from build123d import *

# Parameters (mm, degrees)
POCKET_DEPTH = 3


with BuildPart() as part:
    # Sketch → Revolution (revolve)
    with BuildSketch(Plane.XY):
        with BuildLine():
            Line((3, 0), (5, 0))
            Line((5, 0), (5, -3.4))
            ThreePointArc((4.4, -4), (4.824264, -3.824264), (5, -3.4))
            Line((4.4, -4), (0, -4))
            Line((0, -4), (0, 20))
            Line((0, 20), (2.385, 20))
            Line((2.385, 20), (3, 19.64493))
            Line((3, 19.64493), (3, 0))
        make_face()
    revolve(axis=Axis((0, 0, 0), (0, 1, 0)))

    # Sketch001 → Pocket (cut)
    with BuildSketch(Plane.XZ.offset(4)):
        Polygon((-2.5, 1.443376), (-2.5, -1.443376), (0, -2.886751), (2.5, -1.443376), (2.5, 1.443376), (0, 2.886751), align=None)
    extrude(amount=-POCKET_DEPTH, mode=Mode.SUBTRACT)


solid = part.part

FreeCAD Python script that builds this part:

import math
import FreeCAD as App
import Part
import Sketcher
Q = App.Units.Quantity

doc = App.newDocument("Part")
body = doc.addObject("PartDesign::Body", "Body")

# Sketch on XY plane
sketch1 = body.newObject("Sketcher::SketchObject", "Sketch")
sketch1.AttachmentSupport = (doc.getObject("XY_Plane"), [""])
sketch1.MapMode = "FlatFace"
sketch1.addGeometry([
    Part.LineSegment(App.Vector(5, 0, 0), App.Vector(3, 0, 0)),  # 0
    Part.LineSegment(App.Vector(3, 0, 0), App.Vector(3, 19.64493, 0)),  # 1
    Part.LineSegment(App.Vector(3, 19.64493, 0), App.Vector(2.385, 20, 0)),  # 2
    Part.LineSegment(App.Vector(2.385, 20, 0), App.Vector(0, 20, 0)),  # 3
    Part.LineSegment(App.Vector(0, 20, 0), App.Vector(0, -4, 0)),  # 4
    Part.LineSegment(App.Vector(0, -4, 0), App.Vector(4.4, -4, 0)),  # 5
    Part.ArcOfCircle(Part.Circle(App.Vector(4.4, -3.4, 0), App.Vector(0, 0, 1), 0.6), math.radians(-89.999978), math.radians(-0.000022)),  # 6
    Part.LineSegment(App.Vector(5, -3.4, 0), App.Vector(5, 0, 0)),  # 7
], False)
sketch1.addConstraint([
    Sketcher.Constraint("Coincident", 0, 2, 1, 1),
    Sketcher.Constraint("Coincident", 1, 2, 2, 1),
    Sketcher.Constraint("Coincident", 2, 2, 3, 1),
    Sketcher.Constraint("Coincident", 3, 2, 4, 1),
    Sketcher.Constraint("Coincident", 4, 2, 5, 1),
    Sketcher.Constraint("Tangent", 5, 2, 6, 1),
    Sketcher.Constraint("Tangent", 6, 2, 7, 1),
    Sketcher.Constraint("Coincident", 7, 2, 0, 1),
    Sketcher.Constraint("Horizontal", 0),
    Sketcher.Constraint("Vertical", 1),
    Sketcher.Constraint("Horizontal", 3),
    Sketcher.Constraint("Vertical", 4),
    Sketcher.Constraint("Horizontal", 5),
    Sketcher.Constraint("Vertical", 7),
    Sketcher.Constraint("PointOnObject", 0, 2, -1),
    Sketcher.Constraint("PointOnObject", 3, 2, -2),
    Sketcher.Constraint("Radius", 6, 0.6),
    Sketcher.Constraint("DistanceX", 0, 2, 0, 1, 2.0),
    Sketcher.Constraint("DistanceY", 4, 2, 4, 1, 24.0),
    Sketcher.Constraint("DistanceX", 5, 1, 5, 2, 4.4),
    Sketcher.Constraint("DistanceY", 7, 1, 7, 2, 3.4),
    Sketcher.Constraint("DistanceX", 3, 2, 3, 1, 2.385),
    Sketcher.Constraint("DistanceY", 1, 1, 1, 2, 19.64493),
])
revolution = body.newObject("PartDesign::Revolution", "Revolution")
revolution.Profile = sketch1
revolution.ReferenceAxis = (sketch1, ["V_Axis"])
revolution.Angle = 360

# Sketch on XZ plane
sketch2 = body.newObject("Sketcher::SketchObject", "Sketch001")
sketch2.AttachmentSupport = (doc.getObject("XZ_Plane"), [""])
sketch2.MapMode = "FlatFace"
sketch2.AttachmentOffset = App.Placement(App.Vector(0, 0, 4), App.Rotation())
sketch2.addGeometry([
    Part.LineSegment(App.Vector(-2.5, 1.443376, 0), App.Vector(-2.5, -1.443376, 0)),  # 0
    Part.LineSegment(App.Vector(-2.5, -1.443376, 0), App.Vector(0, -2.886751, 0)),  # 1
    Part.LineSegment(App.Vector(0, -2.886751, 0), App.Vector(2.5, -1.443376, 0)),  # 2
    Part.LineSegment(App.Vector(2.5, -1.443376, 0), App.Vector(2.5, 1.443376, 0)),  # 3
    Part.LineSegment(App.Vector(2.5, 1.443376, 0), App.Vector(0, 2.886751, 0)),  # 4
    Part.LineSegment(App.Vector(0, 2.886751, 0), App.Vector(-2.5, 1.443376, 0)),  # 5
], False)
sketch2.addConstraint([
    Sketcher.Constraint("Coincident", 0, 2, 1, 1),
    Sketcher.Constraint("Coincident", 1, 2, 2, 1),
    Sketcher.Constraint("Coincident", 2, 2, 3, 1),
    Sketcher.Constraint("Coincident", 3, 2, 4, 1),
    Sketcher.Constraint("Coincident", 4, 2, 5, 1),
    Sketcher.Constraint("Coincident", 5, 2, 0, 1),
    Sketcher.Constraint("Vertical", 0),
    Sketcher.Constraint("Vertical", 3),
    Sketcher.Constraint("Symmetric", 0, 2, 3, 2, -1, 1),
    Sketcher.Constraint("Symmetric", 1, 2, 4, 2, -1, 1),
    Sketcher.Constraint("PointOnObject", 1, 2, -2),
    Sketcher.Constraint("Parallel", 2, 5),
    Sketcher.Constraint("Horizontal", 0, 2, 2, 2),
    Sketcher.Constraint("Angle", 1, Q("-29.999988 deg")),
    Sketcher.Constraint("DistanceX", 0, 2, 2, 2, 5.0),
    Sketcher.Constraint("DistanceY", 0, 2, 0, 1, 2.886752),
])
pocket1 = body.newObject("PartDesign::Pocket", "Pocket")
pocket1.Profile = sketch2
pocket1.Length = 3

doc.recompute()
